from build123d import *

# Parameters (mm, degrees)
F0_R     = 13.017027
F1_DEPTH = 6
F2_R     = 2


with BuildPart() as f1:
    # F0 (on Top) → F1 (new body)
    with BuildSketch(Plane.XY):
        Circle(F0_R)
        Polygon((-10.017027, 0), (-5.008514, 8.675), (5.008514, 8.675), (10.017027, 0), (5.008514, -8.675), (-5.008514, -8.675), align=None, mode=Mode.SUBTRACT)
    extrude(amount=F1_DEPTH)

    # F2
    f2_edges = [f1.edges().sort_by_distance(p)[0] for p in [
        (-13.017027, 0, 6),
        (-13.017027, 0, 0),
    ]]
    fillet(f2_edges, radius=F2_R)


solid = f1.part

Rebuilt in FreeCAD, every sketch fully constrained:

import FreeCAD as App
import Part
import Sketcher
Q = App.Units.Quantity


def edges_at(feature, points):
    """Names of the edges that pass closest to the given points."""
    edges = feature.Shape.Edges
    near = lambda p: min(range(len(edges)), key=lambda i: edges[i].distToShape(Part.Vertex(*p))[0])
    return sorted({f"Edge{near(p) + 1}" for p in points})


def add_polygon(sketch, points):
    """Adds a closed chain of lines whose ends are joined by coincident constraints."""
    first, n = sketch.GeometryCount, len(points)
    for a, b in zip(points, points[1:] + points[:1]):
        sketch.addGeometry(Part.LineSegment(App.Vector(*a, 0), App.Vector(*b, 0)), False)
    for i in range(n):
        sketch.addConstraint(Sketcher.Constraint("Coincident", first + i, 2, first + (i + 1) % n, 1))

doc = App.newDocument("Part")
params = doc.addObject("Spreadsheet::Sheet", "Params")
for row, (alias, value) in enumerate([
    ("pad1_length", "6 mm"),
    ("fillet_radius", "2 mm"),
], start=1):
    params.set(f"A{row}", alias)
    params.set(f"B{row}", "=" + value)
    params.setAlias(f"B{row}", alias)

body = doc.addObject("PartDesign::Body", "Body")

sketch1 = body.newObject("Sketcher::SketchObject", "Sketch")
sketch1.AttachmentSupport = (doc.getObject("XY_Plane"), [""])
sketch1.MapMode = "FlatFace"
sketch1.addGeometry(Part.Circle(App.Vector(0, 0, 0), App.Vector(0, 0, 1), 13.017027), False)
add_polygon(sketch1, [(-5.008514, -8.675), (-10.017027, 0), (-5.008514, 8.675), (5.008514, 8.675), (10.017027, 0), (5.008514, -8.675)])
sketch1.addConstraint([
    Sketcher.Constraint("Horizontal", 3),
    Sketcher.Constraint("Horizontal", 6),
    Sketcher.Constraint("Coincident", 0, 3, -1, 1),
    Sketcher.Constraint("Symmetric", 1, 2, 4, 2, -1, 1),
    Sketcher.Constraint("Symmetric", 2, 2, 5, 2, -1, 1),
    Sketcher.Constraint("PointOnObject", 1, 2, -1),
    Sketcher.Constraint("Parallel", 1, 4),
    Sketcher.Constraint("Vertical", 3, 2, 5, 2),
    Sketcher.Constraint("Angle", 1, Q("119.999997 deg")),
    Sketcher.Constraint("DistanceY", 5, 2, 3, 2, Q("17.35 mm")),
    Sketcher.Constraint("Diameter", 0, Q("26.034054 mm")),
    Sketcher.Constraint("DistanceX", 3, 1, 3, 2, Q("10.017028 mm")),
])
pad1 = body.newObject("PartDesign::Pad", "Pad")
pad1.Profile = sketch1
pad1.setExpression("Length", "Params.pad1_length")
doc.recompute()

fillet = body.newObject("PartDesign::Fillet", "Fillet")
fillet.Base = (pad1, edges_at(pad1, [(-13.017, 0, 6), (-13.017, 0, 0)]))
fillet.setExpression("Radius", "Params.fillet_radius")

doc.recompute()
